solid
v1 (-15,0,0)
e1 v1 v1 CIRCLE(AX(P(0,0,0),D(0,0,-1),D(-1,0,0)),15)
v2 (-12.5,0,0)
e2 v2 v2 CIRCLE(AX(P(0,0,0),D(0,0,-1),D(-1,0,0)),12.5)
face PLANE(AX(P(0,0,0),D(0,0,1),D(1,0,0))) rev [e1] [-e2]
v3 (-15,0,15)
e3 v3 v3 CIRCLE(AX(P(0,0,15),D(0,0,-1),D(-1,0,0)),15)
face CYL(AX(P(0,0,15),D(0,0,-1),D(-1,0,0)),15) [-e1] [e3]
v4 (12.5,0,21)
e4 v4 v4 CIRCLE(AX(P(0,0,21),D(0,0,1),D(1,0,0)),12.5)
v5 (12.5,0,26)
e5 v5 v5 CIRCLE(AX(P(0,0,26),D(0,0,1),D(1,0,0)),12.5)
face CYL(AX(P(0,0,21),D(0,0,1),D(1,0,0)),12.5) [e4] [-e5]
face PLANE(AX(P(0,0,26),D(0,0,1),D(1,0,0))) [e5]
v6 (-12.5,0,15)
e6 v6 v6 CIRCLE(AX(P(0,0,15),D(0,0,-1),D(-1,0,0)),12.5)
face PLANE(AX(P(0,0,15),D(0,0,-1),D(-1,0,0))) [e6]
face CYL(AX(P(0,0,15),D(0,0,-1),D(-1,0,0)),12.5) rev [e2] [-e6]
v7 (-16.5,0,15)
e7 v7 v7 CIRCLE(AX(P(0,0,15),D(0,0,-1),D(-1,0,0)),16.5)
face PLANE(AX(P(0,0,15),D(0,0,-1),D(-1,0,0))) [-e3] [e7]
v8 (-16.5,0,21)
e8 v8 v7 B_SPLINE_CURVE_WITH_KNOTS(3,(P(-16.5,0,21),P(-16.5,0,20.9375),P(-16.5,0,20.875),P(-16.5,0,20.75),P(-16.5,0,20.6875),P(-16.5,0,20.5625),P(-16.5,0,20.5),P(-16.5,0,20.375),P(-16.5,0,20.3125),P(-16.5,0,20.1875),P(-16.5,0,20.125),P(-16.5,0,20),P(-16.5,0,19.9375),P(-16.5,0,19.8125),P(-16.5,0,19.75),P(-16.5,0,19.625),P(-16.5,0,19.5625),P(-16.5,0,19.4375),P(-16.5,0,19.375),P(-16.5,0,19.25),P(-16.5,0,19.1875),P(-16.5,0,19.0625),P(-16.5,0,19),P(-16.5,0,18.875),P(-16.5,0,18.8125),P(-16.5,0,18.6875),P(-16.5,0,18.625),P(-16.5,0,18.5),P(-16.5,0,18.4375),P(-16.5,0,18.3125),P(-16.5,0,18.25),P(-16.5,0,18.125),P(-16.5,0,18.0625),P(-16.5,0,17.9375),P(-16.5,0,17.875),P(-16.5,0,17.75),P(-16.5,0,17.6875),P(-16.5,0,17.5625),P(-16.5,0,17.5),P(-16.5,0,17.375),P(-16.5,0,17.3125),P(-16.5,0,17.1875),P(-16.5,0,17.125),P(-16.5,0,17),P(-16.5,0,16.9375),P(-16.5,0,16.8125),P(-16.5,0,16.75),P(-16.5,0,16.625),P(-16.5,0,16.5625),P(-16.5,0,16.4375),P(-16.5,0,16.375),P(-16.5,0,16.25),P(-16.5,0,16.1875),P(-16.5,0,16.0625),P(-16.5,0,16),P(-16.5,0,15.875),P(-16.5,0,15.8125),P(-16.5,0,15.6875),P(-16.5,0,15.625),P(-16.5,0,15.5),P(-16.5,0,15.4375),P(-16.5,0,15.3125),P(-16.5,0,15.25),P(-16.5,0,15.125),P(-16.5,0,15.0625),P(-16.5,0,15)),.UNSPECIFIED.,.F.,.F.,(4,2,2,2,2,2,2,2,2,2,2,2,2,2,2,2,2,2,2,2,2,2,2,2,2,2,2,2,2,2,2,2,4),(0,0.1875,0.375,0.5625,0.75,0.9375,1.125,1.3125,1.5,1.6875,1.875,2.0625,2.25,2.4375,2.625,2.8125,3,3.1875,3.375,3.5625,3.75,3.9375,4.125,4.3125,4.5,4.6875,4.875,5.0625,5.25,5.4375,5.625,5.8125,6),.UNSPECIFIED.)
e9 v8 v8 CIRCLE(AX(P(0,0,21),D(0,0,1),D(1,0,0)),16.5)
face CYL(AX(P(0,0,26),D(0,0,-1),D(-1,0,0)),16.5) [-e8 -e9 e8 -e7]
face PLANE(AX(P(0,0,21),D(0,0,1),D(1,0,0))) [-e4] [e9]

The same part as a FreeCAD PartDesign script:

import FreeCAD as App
import Part
import Sketcher

V = App.Vector

doc = App.newDocument("Part")
body = doc.addObject("PartDesign::Body", "Body")

# Sketch on XY plane
sketch1 = body.newObject("Sketcher::SketchObject", "Sketch")
sketch1.AttachmentSupport = (doc.getObject("XY_Plane"), [""])
sketch1.MapMode = "FlatFace"
sketch1.addGeometry(Part.Circle(V(0, 0, 0), V(0, 0, 1), 16), False)
sketch1.addConstraint(Sketcher.Constraint("Coincident", 0, 3, -1, 1))
sketch1.addConstraint(Sketcher.Constraint("Diameter", 0, 33.0))
pad1 = body.newObject("PartDesign::Pad", "Pad")
pad1.Profile = sketch1
pad1.Length = 26

# Sketch on XY plane
sketch2 = body.newObject("Sketcher::SketchObject", "Sketch001")
sketch2.AttachmentSupport = (doc.getObject("XY_Plane"), [""])
sketch2.MapMode = "FlatFace"
sketch2.AttachmentOffset = App.Placement(V(0, 0, 21), App.Rotation())
sketch2.addGeometry(Part.Circle(V(0, 0, 0), V(0, 0, 1), 16), False)
sketch2.addGeometry(Part.Circle(V(0, 0, 0), V(0, 0, 1), 12), False)
sketch2.addConstraint(Sketcher.Constraint("Coincident", 0, 3, -1, 1))
sketch2.addConstraint(Sketcher.Constraint("Coincident", 1, 3, -1, 1))
sketch2.addConstraint(Sketcher.Constraint("Diameter", 0, 33.0))
sketch2.addConstraint(Sketcher.Constraint("Diameter", 1, 25.0))
pocket1 = body.newObject("PartDesign::Pocket", "Pocket")
pocket1.Profile = sketch2
pocket1.Length = 5
pocket1.Reversed = True

# Sketch on XY plane
sketch3 = body.newObject("Sketcher::SketchObject", "Sketch002")
sketch3.AttachmentSupport = (doc.getObject("XY_Plane"), [""])
sketch3.MapMode = "FlatFace"
sketch3.addGeometry(Part.Circle(V(0, 0, 0), V(0, 0, 1), 16), False)
sketch3.addGeometry(Part.Circle(V(0, 0, 0), V(0, 0, 1), 15), False)
sketch3.addConstraint(Sketcher.Constraint("Coincident", 0, 3, -1, 1))
sketch3.addConstraint(Sketcher.Constraint("Coincident", 1, 3, -1, 1))
sketch3.addConstraint(Sketcher.Constraint("Diameter", 0, 33.0))
sketch3.addConstraint(Sketcher.Constraint("Diameter", 1, 30.0))
pocket2 = body.newObject("PartDesign::Pocket", "Pocket001")
pocket2.Profile = sketch3
pocket2.Length = 15
pocket2.Reversed = True

# Sketch on XY plane
sketch4 = body.newObject("Sketcher::SketchObject", "Sketch003")
sketch4.AttachmentSupport = (doc.getObject("XY_Plane"), [""])
sketch4.MapMode = "FlatFace"
sketch4.addGeometry(Part.Circle(V(0, 0, 0), V(0, 0, 1), 12), False)
sketch4.addConstraint(Sketcher.Constraint("Coincident", 0, 3, -1, 1))
sketch4.addConstraint(Sketcher.Constraint("Diameter", 0, 25.0))
pocket3 = body.newObject("PartDesign::Pocket", "Pocket002")
pocket3.Profile = sketch4
pocket3.Length = 15
pocket3.Reversed = True

doc.recompute()
